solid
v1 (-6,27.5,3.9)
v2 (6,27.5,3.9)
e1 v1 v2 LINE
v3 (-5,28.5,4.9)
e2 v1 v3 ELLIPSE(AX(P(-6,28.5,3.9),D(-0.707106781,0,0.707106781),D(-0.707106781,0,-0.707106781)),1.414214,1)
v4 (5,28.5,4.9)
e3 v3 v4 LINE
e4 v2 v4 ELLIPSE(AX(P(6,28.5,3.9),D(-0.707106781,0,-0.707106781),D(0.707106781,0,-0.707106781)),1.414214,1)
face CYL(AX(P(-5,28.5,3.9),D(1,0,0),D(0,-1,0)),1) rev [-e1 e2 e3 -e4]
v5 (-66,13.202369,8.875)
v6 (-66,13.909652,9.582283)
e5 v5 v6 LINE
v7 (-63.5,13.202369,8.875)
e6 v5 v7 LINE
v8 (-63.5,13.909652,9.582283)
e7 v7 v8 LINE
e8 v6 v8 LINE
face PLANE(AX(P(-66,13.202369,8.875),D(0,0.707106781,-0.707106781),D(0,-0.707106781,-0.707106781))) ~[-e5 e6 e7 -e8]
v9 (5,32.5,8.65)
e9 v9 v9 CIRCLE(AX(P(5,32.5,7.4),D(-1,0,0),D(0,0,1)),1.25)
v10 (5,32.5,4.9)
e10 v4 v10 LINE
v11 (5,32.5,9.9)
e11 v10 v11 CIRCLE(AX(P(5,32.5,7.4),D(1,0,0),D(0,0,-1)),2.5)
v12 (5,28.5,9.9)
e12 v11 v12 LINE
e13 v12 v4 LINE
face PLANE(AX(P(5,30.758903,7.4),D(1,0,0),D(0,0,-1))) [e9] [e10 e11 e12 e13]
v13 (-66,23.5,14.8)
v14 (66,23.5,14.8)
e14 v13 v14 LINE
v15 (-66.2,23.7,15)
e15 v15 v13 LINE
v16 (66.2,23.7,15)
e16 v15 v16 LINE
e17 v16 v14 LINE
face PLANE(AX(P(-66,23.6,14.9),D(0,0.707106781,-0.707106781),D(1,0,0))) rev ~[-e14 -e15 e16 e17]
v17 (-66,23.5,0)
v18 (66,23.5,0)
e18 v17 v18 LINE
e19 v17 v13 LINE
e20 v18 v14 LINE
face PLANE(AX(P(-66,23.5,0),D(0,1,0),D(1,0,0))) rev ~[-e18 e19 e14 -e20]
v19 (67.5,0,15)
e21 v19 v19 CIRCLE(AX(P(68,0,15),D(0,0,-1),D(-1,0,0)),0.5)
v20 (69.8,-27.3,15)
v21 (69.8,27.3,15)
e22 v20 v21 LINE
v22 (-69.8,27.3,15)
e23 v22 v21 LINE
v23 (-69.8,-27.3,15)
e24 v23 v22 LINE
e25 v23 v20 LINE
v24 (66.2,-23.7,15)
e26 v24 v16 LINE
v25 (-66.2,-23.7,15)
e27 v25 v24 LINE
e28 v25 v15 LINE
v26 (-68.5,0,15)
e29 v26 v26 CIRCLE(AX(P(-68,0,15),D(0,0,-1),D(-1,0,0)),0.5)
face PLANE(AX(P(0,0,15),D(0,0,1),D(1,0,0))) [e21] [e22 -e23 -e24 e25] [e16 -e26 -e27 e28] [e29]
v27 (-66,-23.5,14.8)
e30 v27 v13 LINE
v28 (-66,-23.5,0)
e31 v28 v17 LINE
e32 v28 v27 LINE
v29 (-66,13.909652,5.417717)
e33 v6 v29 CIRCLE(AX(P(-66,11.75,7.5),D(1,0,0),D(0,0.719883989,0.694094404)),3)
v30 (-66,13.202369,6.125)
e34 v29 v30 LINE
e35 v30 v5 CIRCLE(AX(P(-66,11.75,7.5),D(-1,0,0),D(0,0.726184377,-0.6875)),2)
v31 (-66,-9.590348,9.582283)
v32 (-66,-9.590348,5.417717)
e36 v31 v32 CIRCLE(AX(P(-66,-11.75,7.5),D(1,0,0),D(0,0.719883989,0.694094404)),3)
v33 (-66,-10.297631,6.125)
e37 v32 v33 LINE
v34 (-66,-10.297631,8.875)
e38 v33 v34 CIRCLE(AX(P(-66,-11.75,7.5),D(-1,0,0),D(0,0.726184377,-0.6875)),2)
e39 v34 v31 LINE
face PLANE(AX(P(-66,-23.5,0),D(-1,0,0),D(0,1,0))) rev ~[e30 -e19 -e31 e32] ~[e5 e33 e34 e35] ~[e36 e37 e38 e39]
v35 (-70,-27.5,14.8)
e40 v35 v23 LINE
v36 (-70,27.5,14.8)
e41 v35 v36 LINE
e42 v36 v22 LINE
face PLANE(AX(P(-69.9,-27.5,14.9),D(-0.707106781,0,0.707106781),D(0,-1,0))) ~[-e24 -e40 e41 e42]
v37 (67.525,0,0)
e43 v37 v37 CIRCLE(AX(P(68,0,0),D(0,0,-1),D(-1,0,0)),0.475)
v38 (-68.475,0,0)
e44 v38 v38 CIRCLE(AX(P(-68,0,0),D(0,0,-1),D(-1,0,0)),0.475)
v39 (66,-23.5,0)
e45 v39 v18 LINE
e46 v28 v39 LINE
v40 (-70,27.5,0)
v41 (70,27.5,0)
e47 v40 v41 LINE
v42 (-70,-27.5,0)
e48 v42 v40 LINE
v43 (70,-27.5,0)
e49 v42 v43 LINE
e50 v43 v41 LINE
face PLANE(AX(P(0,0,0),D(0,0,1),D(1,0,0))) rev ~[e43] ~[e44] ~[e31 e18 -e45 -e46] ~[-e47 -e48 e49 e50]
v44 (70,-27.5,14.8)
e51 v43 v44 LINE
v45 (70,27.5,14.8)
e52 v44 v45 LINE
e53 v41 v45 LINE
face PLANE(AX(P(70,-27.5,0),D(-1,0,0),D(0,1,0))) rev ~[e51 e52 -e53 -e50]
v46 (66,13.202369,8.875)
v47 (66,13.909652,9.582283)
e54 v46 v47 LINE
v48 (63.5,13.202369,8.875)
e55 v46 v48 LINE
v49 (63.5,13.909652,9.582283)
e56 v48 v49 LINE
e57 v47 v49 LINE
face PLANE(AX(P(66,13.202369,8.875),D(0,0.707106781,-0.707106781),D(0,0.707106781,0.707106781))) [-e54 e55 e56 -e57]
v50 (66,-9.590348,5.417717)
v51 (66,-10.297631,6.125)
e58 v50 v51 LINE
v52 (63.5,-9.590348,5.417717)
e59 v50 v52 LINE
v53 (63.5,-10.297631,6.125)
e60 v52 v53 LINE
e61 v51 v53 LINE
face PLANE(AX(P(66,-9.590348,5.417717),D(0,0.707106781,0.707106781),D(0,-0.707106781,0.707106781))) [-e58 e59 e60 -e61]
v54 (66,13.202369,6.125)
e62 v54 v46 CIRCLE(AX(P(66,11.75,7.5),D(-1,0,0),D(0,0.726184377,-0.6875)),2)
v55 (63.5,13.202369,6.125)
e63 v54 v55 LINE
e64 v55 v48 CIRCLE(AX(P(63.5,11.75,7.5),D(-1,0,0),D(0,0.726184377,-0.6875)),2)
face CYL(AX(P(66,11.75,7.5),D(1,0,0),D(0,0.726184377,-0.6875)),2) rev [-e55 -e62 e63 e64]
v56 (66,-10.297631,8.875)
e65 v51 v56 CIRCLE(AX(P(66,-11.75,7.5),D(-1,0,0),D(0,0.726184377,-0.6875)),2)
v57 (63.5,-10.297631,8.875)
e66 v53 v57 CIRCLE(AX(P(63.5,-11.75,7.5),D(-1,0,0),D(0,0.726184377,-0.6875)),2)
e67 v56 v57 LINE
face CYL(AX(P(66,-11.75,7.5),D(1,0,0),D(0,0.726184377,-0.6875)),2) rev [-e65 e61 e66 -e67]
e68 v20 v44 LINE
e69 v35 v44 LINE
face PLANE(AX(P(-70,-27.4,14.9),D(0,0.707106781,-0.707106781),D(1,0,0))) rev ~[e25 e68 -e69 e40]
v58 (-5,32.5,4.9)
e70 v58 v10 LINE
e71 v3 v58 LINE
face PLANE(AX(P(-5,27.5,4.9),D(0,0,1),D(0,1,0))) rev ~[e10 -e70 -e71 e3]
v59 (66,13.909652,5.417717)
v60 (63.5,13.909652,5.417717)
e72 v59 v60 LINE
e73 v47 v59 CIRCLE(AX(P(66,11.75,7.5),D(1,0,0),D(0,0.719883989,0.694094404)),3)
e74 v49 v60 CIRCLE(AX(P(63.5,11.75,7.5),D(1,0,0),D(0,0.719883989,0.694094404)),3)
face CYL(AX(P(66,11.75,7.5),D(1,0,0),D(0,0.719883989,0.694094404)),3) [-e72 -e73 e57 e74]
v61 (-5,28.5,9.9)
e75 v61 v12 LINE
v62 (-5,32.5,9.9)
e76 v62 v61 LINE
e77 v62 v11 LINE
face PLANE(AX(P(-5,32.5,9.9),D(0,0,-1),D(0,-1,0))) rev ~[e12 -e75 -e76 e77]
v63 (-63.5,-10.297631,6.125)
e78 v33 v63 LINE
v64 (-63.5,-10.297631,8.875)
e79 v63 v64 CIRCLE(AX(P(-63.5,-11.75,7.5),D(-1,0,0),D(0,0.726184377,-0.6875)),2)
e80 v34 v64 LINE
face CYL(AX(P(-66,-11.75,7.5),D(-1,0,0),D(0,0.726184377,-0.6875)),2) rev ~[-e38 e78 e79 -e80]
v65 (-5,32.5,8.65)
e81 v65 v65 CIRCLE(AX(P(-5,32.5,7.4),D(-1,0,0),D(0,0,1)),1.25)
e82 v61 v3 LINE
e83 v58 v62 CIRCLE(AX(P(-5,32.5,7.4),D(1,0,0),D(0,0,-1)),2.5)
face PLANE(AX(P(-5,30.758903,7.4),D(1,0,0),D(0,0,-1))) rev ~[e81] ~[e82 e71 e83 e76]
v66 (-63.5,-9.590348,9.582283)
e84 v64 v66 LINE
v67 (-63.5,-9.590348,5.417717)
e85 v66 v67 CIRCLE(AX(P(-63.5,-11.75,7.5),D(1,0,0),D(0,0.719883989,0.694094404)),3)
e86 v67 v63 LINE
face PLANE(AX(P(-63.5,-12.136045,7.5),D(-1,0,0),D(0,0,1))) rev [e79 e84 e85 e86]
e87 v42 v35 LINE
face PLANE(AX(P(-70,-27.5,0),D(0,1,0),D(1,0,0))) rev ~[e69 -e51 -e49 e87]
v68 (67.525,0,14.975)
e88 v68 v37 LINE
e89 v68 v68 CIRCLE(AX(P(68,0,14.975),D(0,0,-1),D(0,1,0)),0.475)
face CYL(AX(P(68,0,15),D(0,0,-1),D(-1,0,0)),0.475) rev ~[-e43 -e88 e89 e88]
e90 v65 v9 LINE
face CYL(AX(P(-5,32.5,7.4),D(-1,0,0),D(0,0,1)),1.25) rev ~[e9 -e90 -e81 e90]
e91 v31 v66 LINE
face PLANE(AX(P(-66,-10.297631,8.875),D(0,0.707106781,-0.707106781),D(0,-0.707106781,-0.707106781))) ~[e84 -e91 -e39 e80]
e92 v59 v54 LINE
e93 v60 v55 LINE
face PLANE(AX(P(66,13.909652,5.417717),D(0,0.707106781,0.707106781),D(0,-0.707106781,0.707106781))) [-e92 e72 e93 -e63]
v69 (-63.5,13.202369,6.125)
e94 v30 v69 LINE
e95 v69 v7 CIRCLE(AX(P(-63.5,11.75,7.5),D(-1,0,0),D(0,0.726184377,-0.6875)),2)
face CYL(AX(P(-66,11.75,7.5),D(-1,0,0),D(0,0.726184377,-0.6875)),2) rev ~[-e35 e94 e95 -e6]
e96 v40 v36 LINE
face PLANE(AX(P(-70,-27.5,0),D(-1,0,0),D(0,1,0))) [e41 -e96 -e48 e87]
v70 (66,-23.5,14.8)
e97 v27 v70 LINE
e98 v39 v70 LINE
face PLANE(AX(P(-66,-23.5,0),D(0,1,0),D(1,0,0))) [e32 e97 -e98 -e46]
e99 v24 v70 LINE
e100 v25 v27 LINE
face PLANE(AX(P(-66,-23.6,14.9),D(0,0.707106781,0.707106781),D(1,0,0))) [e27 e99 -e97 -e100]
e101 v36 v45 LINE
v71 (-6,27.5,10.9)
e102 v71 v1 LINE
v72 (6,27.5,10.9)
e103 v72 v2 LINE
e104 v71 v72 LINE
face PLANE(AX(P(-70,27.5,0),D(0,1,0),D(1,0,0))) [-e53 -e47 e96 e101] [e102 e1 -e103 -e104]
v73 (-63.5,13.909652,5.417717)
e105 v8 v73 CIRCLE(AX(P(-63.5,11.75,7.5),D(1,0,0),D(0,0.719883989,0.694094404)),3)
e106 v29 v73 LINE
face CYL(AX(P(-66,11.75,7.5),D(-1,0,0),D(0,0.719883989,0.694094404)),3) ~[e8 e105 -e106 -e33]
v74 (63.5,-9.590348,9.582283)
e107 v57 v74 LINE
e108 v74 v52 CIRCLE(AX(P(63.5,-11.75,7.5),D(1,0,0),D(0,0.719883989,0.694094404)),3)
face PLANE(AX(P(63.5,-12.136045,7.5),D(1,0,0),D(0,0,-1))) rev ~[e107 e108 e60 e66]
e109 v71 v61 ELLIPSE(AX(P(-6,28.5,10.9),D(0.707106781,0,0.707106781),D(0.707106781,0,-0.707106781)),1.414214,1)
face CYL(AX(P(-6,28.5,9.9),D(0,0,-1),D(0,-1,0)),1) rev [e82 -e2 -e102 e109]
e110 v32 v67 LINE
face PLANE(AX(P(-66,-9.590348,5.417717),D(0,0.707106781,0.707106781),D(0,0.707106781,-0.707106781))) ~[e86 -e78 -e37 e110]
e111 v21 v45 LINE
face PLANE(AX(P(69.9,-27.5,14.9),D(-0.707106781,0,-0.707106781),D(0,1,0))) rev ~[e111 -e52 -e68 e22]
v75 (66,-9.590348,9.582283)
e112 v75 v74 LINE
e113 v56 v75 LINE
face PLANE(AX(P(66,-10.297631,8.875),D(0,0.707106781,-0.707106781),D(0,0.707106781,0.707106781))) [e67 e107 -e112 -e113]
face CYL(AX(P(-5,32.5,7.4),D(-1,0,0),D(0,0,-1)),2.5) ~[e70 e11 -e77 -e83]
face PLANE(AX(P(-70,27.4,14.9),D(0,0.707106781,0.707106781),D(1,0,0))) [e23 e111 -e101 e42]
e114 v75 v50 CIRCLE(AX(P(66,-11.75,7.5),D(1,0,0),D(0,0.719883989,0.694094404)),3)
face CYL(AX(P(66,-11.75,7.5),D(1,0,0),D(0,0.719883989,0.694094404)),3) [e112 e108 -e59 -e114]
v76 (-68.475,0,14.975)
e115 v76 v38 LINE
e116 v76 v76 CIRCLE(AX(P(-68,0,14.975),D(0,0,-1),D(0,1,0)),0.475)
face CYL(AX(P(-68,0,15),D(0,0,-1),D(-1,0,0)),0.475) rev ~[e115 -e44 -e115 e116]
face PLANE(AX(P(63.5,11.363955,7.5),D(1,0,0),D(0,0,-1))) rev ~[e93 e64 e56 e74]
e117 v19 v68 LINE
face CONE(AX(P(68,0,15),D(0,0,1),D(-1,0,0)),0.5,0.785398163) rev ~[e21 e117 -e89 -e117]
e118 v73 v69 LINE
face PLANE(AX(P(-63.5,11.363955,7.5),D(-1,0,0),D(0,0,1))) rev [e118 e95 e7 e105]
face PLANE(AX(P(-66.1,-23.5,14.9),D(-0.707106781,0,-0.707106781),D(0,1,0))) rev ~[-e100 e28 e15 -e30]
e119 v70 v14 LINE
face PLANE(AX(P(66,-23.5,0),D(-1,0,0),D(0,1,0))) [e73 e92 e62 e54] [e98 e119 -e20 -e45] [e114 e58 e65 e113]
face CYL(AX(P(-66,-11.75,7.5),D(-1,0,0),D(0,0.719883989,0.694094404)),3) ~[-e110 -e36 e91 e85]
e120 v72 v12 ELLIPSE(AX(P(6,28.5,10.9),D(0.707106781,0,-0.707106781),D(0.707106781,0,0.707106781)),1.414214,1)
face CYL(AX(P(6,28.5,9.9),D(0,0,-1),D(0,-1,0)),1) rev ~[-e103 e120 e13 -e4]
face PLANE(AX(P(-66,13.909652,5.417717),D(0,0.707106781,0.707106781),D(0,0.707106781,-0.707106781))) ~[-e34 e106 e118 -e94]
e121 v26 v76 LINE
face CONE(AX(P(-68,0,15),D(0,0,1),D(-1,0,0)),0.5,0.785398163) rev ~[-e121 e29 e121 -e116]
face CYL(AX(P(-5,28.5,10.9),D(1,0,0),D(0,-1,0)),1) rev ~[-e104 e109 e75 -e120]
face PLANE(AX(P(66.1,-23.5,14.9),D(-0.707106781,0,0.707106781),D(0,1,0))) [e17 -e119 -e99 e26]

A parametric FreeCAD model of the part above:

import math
import FreeCAD as App
import Part
import Sketcher
from FreeCAD import Vector


def edges_at(feature, points):
    """Names of the edges that pass closest to the given points."""
    edges = feature.Shape.Edges
    near = lambda p: min(range(len(edges)), key=lambda i: edges[i].distToShape(Part.Vertex(*p))[0])
    return sorted({f"Edge{near(p) + 1}" for p in points})

doc = App.newDocument("Part")
body = doc.addObject("PartDesign::Body", "Body")

sketch1 = body.newObject("Sketcher::SketchObject", "Sketch")
sketch1.AttachmentSupport = (doc.getObject("XY_Plane"), [""])
sketch1.MapMode = "FlatFace"
sketch1.addGeometry([
    Part.LineSegment(Vector(-70, 28, 0), Vector(-70, -28, 0)),
    Part.LineSegment(Vector(-70, -28, 0), Vector(70, -28, 0)),
    Part.LineSegment(Vector(70, -28, 0), Vector(70, 28, 0)),
    Part.LineSegment(Vector(70, 28, 0), Vector(-70, 28, 0)),
    Part.LineSegment(Vector(66, -24, 0), Vector(-66, -24, 0)),
    Part.LineSegment(Vector(-66, -24, 0), Vector(-66, 24, 0)),
    Part.LineSegment(Vector(-66, 24, 0), Vector(66, 24, 0)),
    Part.LineSegment(Vector(66, 24, 0), Vector(66, -24, 0)),
], False)
sketch1.addConstraint([
    Sketcher.Constraint("Coincident", 0, 2, 1, 1),
    Sketcher.Constraint("Coincident", 1, 2, 2, 1),
    Sketcher.Constraint("Coincident", 2, 2, 3, 1),
    Sketcher.Constraint("Coincident", 3, 2, 0, 1),
    Sketcher.Constraint("Coincident", 4, 2, 5, 1),
    Sketcher.Constraint("Coincident", 5, 2, 6, 1),
    Sketcher.Constraint("Coincident", 6, 2, 7, 1),
    Sketcher.Constraint("Coincident", 7, 2, 4, 1),
    Sketcher.Constraint("Vertical", 0),
    Sketcher.Constraint("Horizontal", 1),
    Sketcher.Constraint("Vertical", 2),
    Sketcher.Constraint("Horizontal", 3),
    Sketcher.Constraint("Horizontal", 4),
    Sketcher.Constraint("Vertical", 5),
    Sketcher.Constraint("Horizontal", 6),
    Sketcher.Constraint("Vertical", 7),
    Sketcher.Constraint("Symmetric", 0, 2, 2, 2, -1, 1),
    Sketcher.Constraint("Symmetric", 4, 2, 6, 2, -1, 1),
    Sketcher.Constraint("DistanceX", 1, 1, 1, 2, 140.0),
    Sketcher.Constraint("DistanceX", 4, 2, 4, 1, 132.0),
    Sketcher.Constraint("DistanceY", 0, 2, 0, 1, 55.0),
    Sketcher.Constraint("DistanceY", 5, 1, 5, 2, 47.0),
])
pad1 = body.newObject("PartDesign::Pad", "Pad")
pad1.Profile = sketch1
pad1.Length = 15

sketch2 = body.newObject("Sketcher::SketchObject", "Sketch001")
sketch2.AttachmentSupport = (doc.getObject("YZ_Plane"), [""])
sketch2.MapMode = "FlatFace"
sketch2.AttachmentOffset = App.Placement(Vector(0, 0, 66), App.Rotation())
sketch2.addGeometry([
    Part.LineSegment(Vector(13.9, 9.6, 0), Vector(13.2, 8.9, 0)),
    Part.ArcOfCircle(Part.Circle(Vector(11.8, 7.5, 0), Vector(0, 0, 1), 2), math.radians(43), math.radians(317)),
    Part.LineSegment(Vector(13.2, 6.1, 0), Vector(13.9, 5.4, 0)),
    Part.ArcOfCircle(Part.Circle(Vector(11.8, 7.5, 0), Vector(0, 0, 1), 3), math.radians(44), math.radians(316)),
    Part.LineSegment(Vector(-9.6, 9.6, 0), Vector(-10.3, 8.9, 0)),
    Part.ArcOfCircle(Part.Circle(Vector(-11.8, 7.5, 0), Vector(0, 0, 1), 2), math.radians(43), math.radians(317)),
    Part.LineSegment(Vector(-10.3, 6.1, 0), Vector(-9.6, 5.4, 0)),
    Part.ArcOfCircle(Part.Circle(Vector(-11.8, 7.5, 0), Vector(0, 0, 1), 3), math.radians(44), math.radians(316)),
], False)
sketch2.addConstraint([
    Sketcher.Constraint("Coincident", 0, 2, 1, 1),
    Sketcher.Constraint("Coincident", 1, 2, 2, 1),
    Sketcher.Constraint("Coincident", 2, 2, 3, 2),
    Sketcher.Constraint("Coincident", 3, 1, 0, 1),
    Sketcher.Constraint("Coincident", 4, 2, 5, 1),
    Sketcher.Constraint("Coincident", 5, 2, 6, 1),
    Sketcher.Constraint("Coincident", 6, 2, 7, 2),
    Sketcher.Constraint("Coincident", 7, 1, 4, 1),
    Sketcher.Constraint("Coincident", 3, 3, 1, 3),
    Sketcher.Constraint("Coincident", 7, 3, 5, 3),
    Sketcher.Constraint("Equal", 1, 5),
    Sketcher.Constraint("Equal", 3, 7),
    Sketcher.Constraint("Symmetric", 1, 3, 5, 3, -2),
    Sketcher.Constraint("Perpendicular", 0, 2),
    Sketcher.Constraint("Perpendicular", 2, 4),
    Sketcher.Constraint("Perpendicular", 4, 6),
    Sketcher.Constraint("Horizontal", 0, 2, 4, 2),
    Sketcher.Constraint("Horizontal", 1, 2, 5, 2),
    Sketcher.Constraint("Vertical", 0, 2, 1, 2),
    Sketcher.Constraint("Vertical", 2, 2, 3, 1),
    Sketcher.Constraint("Radius", 1, 2.0),
    Sketcher.Constraint("Radius", 3, 3.0),
    Sketcher.Constraint("DistanceY", -1, 1, 1, 3, 7.5),
    Sketcher.Constraint("DistanceX", 5, 3, 1, 3, 23.5),
    Sketcher.Constraint("DistanceY", 1, 2, 0, 2, 2.75),
])
pad2 = body.newObject("PartDesign::Pad", "Pad001")
pad2.Profile = sketch2
pad2.Length = 2.5
pad2.Reversed = True
doc.recompute()

mirrored = body.newObject("PartDesign::Mirrored", "Mirrored")
mirrored.Originals = [pad2]
mirrored.MirrorPlane = (doc.getObject("YZ_Plane"), [""])
body.Tip = mirrored

sketch3 = body.newObject("Sketcher::SketchObject", "Sketch002")
sketch3.AttachmentSupport = (doc.getObject("XY_Plane"), [""])
sketch3.MapMode = "FlatFace"
sketch3.AttachmentOffset = App.Placement(Vector(0, 0, 15), App.Rotation())
sketch3.addGeometry([
    Part.Circle(Vector(68, 0, 0), Vector(0, 0, 1), 0.47),
    Part.Circle(Vector(-68, 0, 0), Vector(0, 0, 1), 0.47),
], False)
sketch3.addConstraint([
    Sketcher.Constraint("Equal", 0, 1),
    Sketcher.Constraint("Symmetric", 0, 3, 1, 3, -1, 1),
    Sketcher.Constraint("PointOnObject", 0, 3, -1),
    Sketcher.Constraint("Diameter", 0, 0.95),
    Sketcher.Constraint("DistanceX", -1, 1, 0, 3, 68.0),
])
doc.recompute()
hole = body.newObject("PartDesign::Hole", "Hole")
hole.Profile = sketch3
hole.ThreadType = "None"
hole.Diameter = 0.95
hole.DepthType = "ThroughAll"
hole.HoleCutType = "Countersink"
hole.HoleCutDiameter = 1
hole.HoleCutCountersinkAngle = 90
doc.recompute()

chamfer = body.newObject("PartDesign::Chamfer", "Chamfer")
chamfer.Base = (hole, edges_at(hole, [
    (-70, 0, 15),
    (66, 0, 15),
    (0, -27.5, 15),
    (0, 23.5, 15),
    (-66, 0, 15),
    (0, -23.5, 15),
    (70, 0, 15),
    (0, 27.5, 15),
]))
chamfer.Size = 0.2

sketch4 = body.newObject("Sketcher::SketchObject", "Sketch003")
sketch4.AttachmentSupport = (doc.getObject("YZ_Plane"), [""])
sketch4.MapMode = "FlatFace"
sketch4.AttachmentOffset = App.Placement(Vector(0, 0, -5), App.Rotation())
sketch4.addGeometry([
    Part.LineSegment(Vector(32.5, 9.9, 0), Vector(27.5, 9.9, 0)),
    Part.LineSegment(Vector(27.5, 9.9, 0), Vector(27.5, 4.9, 0)),
    Part.LineSegment(Vector(27.5, 4.9, 0), Vector(32.5, 4.9, 0)),
    Part.ArcOfCircle(Part.Circle(Vector(32.5, 7.4, 0), Vector(0, 0, 1), 2.5), math.radians(-90), math.radians(90)),
], False)
sketch4.addConstraint([
    Sketcher.Constraint("Coincident", 0, 2, 1, 1),
    Sketcher.Constraint("Coincident", 1, 2, 2, 1),
    Sketcher.Constraint("Tangent", 2, 2, 3, 1),
    Sketcher.Constraint("Tangent", 3, 2, 0, 1),
    Sketcher.Constraint("Horizontal", 0),
    Sketcher.Constraint("Vertical", 1),
    Sketcher.Constraint("Horizontal", 2),
    Sketcher.Constraint("Equal", 2, 1),
    Sketcher.Constraint("Radius", 3, 2.5),
    Sketcher.Constraint("DistanceX", -1, 1, 3, 3, 32.5),
    Sketcher.Constraint("DistanceY", -1, 1, 3, 3, 7.4),
])
pad3 = body.newObject("PartDesign::Pad", "Pad002")
pad3.Profile = sketch4
pad3.Length = 10
doc.recompute()

fillet = body.newObject("PartDesign::Fillet", "Fillet")
fillet.Base = (pad3, edges_at(pad3, [
    (-5, 27.5, 7.4),
    (0, 27.5, 9.9),
    (0, 27.5, 4.9),
    (5, 27.5, 7.4),
]))
fillet.Radius = 1

sketch5 = body.newObject("Sketcher::SketchObject", "Sketch004")
sketch5.AttachmentSupport = (doc.getObject("YZ_Plane"), [""])
sketch5.MapMode = "FlatFace"
sketch5.AttachmentOffset = App.Placement(Vector(0, 0, -5), App.Rotation())
sketch5.addGeometry(Part.Circle(Vector(32.5, 7.4, 0), Vector(0, 0, 1), 1.2), False)
sketch5.addConstraint([
    Sketcher.Constraint("Diameter", 0, 2.5),
    Sketcher.Constraint("DistanceX", -1, 1, 0, 3, 32.5),
    Sketcher.Constraint("DistanceY", -1, 1, 0, 3, 7.4),
])
pocket1 = body.newObject("PartDesign::Pocket", "Pocket")
pocket1.Profile = sketch5
pocket1.Length = 10
pocket1.Reversed = True

doc.recompute()
